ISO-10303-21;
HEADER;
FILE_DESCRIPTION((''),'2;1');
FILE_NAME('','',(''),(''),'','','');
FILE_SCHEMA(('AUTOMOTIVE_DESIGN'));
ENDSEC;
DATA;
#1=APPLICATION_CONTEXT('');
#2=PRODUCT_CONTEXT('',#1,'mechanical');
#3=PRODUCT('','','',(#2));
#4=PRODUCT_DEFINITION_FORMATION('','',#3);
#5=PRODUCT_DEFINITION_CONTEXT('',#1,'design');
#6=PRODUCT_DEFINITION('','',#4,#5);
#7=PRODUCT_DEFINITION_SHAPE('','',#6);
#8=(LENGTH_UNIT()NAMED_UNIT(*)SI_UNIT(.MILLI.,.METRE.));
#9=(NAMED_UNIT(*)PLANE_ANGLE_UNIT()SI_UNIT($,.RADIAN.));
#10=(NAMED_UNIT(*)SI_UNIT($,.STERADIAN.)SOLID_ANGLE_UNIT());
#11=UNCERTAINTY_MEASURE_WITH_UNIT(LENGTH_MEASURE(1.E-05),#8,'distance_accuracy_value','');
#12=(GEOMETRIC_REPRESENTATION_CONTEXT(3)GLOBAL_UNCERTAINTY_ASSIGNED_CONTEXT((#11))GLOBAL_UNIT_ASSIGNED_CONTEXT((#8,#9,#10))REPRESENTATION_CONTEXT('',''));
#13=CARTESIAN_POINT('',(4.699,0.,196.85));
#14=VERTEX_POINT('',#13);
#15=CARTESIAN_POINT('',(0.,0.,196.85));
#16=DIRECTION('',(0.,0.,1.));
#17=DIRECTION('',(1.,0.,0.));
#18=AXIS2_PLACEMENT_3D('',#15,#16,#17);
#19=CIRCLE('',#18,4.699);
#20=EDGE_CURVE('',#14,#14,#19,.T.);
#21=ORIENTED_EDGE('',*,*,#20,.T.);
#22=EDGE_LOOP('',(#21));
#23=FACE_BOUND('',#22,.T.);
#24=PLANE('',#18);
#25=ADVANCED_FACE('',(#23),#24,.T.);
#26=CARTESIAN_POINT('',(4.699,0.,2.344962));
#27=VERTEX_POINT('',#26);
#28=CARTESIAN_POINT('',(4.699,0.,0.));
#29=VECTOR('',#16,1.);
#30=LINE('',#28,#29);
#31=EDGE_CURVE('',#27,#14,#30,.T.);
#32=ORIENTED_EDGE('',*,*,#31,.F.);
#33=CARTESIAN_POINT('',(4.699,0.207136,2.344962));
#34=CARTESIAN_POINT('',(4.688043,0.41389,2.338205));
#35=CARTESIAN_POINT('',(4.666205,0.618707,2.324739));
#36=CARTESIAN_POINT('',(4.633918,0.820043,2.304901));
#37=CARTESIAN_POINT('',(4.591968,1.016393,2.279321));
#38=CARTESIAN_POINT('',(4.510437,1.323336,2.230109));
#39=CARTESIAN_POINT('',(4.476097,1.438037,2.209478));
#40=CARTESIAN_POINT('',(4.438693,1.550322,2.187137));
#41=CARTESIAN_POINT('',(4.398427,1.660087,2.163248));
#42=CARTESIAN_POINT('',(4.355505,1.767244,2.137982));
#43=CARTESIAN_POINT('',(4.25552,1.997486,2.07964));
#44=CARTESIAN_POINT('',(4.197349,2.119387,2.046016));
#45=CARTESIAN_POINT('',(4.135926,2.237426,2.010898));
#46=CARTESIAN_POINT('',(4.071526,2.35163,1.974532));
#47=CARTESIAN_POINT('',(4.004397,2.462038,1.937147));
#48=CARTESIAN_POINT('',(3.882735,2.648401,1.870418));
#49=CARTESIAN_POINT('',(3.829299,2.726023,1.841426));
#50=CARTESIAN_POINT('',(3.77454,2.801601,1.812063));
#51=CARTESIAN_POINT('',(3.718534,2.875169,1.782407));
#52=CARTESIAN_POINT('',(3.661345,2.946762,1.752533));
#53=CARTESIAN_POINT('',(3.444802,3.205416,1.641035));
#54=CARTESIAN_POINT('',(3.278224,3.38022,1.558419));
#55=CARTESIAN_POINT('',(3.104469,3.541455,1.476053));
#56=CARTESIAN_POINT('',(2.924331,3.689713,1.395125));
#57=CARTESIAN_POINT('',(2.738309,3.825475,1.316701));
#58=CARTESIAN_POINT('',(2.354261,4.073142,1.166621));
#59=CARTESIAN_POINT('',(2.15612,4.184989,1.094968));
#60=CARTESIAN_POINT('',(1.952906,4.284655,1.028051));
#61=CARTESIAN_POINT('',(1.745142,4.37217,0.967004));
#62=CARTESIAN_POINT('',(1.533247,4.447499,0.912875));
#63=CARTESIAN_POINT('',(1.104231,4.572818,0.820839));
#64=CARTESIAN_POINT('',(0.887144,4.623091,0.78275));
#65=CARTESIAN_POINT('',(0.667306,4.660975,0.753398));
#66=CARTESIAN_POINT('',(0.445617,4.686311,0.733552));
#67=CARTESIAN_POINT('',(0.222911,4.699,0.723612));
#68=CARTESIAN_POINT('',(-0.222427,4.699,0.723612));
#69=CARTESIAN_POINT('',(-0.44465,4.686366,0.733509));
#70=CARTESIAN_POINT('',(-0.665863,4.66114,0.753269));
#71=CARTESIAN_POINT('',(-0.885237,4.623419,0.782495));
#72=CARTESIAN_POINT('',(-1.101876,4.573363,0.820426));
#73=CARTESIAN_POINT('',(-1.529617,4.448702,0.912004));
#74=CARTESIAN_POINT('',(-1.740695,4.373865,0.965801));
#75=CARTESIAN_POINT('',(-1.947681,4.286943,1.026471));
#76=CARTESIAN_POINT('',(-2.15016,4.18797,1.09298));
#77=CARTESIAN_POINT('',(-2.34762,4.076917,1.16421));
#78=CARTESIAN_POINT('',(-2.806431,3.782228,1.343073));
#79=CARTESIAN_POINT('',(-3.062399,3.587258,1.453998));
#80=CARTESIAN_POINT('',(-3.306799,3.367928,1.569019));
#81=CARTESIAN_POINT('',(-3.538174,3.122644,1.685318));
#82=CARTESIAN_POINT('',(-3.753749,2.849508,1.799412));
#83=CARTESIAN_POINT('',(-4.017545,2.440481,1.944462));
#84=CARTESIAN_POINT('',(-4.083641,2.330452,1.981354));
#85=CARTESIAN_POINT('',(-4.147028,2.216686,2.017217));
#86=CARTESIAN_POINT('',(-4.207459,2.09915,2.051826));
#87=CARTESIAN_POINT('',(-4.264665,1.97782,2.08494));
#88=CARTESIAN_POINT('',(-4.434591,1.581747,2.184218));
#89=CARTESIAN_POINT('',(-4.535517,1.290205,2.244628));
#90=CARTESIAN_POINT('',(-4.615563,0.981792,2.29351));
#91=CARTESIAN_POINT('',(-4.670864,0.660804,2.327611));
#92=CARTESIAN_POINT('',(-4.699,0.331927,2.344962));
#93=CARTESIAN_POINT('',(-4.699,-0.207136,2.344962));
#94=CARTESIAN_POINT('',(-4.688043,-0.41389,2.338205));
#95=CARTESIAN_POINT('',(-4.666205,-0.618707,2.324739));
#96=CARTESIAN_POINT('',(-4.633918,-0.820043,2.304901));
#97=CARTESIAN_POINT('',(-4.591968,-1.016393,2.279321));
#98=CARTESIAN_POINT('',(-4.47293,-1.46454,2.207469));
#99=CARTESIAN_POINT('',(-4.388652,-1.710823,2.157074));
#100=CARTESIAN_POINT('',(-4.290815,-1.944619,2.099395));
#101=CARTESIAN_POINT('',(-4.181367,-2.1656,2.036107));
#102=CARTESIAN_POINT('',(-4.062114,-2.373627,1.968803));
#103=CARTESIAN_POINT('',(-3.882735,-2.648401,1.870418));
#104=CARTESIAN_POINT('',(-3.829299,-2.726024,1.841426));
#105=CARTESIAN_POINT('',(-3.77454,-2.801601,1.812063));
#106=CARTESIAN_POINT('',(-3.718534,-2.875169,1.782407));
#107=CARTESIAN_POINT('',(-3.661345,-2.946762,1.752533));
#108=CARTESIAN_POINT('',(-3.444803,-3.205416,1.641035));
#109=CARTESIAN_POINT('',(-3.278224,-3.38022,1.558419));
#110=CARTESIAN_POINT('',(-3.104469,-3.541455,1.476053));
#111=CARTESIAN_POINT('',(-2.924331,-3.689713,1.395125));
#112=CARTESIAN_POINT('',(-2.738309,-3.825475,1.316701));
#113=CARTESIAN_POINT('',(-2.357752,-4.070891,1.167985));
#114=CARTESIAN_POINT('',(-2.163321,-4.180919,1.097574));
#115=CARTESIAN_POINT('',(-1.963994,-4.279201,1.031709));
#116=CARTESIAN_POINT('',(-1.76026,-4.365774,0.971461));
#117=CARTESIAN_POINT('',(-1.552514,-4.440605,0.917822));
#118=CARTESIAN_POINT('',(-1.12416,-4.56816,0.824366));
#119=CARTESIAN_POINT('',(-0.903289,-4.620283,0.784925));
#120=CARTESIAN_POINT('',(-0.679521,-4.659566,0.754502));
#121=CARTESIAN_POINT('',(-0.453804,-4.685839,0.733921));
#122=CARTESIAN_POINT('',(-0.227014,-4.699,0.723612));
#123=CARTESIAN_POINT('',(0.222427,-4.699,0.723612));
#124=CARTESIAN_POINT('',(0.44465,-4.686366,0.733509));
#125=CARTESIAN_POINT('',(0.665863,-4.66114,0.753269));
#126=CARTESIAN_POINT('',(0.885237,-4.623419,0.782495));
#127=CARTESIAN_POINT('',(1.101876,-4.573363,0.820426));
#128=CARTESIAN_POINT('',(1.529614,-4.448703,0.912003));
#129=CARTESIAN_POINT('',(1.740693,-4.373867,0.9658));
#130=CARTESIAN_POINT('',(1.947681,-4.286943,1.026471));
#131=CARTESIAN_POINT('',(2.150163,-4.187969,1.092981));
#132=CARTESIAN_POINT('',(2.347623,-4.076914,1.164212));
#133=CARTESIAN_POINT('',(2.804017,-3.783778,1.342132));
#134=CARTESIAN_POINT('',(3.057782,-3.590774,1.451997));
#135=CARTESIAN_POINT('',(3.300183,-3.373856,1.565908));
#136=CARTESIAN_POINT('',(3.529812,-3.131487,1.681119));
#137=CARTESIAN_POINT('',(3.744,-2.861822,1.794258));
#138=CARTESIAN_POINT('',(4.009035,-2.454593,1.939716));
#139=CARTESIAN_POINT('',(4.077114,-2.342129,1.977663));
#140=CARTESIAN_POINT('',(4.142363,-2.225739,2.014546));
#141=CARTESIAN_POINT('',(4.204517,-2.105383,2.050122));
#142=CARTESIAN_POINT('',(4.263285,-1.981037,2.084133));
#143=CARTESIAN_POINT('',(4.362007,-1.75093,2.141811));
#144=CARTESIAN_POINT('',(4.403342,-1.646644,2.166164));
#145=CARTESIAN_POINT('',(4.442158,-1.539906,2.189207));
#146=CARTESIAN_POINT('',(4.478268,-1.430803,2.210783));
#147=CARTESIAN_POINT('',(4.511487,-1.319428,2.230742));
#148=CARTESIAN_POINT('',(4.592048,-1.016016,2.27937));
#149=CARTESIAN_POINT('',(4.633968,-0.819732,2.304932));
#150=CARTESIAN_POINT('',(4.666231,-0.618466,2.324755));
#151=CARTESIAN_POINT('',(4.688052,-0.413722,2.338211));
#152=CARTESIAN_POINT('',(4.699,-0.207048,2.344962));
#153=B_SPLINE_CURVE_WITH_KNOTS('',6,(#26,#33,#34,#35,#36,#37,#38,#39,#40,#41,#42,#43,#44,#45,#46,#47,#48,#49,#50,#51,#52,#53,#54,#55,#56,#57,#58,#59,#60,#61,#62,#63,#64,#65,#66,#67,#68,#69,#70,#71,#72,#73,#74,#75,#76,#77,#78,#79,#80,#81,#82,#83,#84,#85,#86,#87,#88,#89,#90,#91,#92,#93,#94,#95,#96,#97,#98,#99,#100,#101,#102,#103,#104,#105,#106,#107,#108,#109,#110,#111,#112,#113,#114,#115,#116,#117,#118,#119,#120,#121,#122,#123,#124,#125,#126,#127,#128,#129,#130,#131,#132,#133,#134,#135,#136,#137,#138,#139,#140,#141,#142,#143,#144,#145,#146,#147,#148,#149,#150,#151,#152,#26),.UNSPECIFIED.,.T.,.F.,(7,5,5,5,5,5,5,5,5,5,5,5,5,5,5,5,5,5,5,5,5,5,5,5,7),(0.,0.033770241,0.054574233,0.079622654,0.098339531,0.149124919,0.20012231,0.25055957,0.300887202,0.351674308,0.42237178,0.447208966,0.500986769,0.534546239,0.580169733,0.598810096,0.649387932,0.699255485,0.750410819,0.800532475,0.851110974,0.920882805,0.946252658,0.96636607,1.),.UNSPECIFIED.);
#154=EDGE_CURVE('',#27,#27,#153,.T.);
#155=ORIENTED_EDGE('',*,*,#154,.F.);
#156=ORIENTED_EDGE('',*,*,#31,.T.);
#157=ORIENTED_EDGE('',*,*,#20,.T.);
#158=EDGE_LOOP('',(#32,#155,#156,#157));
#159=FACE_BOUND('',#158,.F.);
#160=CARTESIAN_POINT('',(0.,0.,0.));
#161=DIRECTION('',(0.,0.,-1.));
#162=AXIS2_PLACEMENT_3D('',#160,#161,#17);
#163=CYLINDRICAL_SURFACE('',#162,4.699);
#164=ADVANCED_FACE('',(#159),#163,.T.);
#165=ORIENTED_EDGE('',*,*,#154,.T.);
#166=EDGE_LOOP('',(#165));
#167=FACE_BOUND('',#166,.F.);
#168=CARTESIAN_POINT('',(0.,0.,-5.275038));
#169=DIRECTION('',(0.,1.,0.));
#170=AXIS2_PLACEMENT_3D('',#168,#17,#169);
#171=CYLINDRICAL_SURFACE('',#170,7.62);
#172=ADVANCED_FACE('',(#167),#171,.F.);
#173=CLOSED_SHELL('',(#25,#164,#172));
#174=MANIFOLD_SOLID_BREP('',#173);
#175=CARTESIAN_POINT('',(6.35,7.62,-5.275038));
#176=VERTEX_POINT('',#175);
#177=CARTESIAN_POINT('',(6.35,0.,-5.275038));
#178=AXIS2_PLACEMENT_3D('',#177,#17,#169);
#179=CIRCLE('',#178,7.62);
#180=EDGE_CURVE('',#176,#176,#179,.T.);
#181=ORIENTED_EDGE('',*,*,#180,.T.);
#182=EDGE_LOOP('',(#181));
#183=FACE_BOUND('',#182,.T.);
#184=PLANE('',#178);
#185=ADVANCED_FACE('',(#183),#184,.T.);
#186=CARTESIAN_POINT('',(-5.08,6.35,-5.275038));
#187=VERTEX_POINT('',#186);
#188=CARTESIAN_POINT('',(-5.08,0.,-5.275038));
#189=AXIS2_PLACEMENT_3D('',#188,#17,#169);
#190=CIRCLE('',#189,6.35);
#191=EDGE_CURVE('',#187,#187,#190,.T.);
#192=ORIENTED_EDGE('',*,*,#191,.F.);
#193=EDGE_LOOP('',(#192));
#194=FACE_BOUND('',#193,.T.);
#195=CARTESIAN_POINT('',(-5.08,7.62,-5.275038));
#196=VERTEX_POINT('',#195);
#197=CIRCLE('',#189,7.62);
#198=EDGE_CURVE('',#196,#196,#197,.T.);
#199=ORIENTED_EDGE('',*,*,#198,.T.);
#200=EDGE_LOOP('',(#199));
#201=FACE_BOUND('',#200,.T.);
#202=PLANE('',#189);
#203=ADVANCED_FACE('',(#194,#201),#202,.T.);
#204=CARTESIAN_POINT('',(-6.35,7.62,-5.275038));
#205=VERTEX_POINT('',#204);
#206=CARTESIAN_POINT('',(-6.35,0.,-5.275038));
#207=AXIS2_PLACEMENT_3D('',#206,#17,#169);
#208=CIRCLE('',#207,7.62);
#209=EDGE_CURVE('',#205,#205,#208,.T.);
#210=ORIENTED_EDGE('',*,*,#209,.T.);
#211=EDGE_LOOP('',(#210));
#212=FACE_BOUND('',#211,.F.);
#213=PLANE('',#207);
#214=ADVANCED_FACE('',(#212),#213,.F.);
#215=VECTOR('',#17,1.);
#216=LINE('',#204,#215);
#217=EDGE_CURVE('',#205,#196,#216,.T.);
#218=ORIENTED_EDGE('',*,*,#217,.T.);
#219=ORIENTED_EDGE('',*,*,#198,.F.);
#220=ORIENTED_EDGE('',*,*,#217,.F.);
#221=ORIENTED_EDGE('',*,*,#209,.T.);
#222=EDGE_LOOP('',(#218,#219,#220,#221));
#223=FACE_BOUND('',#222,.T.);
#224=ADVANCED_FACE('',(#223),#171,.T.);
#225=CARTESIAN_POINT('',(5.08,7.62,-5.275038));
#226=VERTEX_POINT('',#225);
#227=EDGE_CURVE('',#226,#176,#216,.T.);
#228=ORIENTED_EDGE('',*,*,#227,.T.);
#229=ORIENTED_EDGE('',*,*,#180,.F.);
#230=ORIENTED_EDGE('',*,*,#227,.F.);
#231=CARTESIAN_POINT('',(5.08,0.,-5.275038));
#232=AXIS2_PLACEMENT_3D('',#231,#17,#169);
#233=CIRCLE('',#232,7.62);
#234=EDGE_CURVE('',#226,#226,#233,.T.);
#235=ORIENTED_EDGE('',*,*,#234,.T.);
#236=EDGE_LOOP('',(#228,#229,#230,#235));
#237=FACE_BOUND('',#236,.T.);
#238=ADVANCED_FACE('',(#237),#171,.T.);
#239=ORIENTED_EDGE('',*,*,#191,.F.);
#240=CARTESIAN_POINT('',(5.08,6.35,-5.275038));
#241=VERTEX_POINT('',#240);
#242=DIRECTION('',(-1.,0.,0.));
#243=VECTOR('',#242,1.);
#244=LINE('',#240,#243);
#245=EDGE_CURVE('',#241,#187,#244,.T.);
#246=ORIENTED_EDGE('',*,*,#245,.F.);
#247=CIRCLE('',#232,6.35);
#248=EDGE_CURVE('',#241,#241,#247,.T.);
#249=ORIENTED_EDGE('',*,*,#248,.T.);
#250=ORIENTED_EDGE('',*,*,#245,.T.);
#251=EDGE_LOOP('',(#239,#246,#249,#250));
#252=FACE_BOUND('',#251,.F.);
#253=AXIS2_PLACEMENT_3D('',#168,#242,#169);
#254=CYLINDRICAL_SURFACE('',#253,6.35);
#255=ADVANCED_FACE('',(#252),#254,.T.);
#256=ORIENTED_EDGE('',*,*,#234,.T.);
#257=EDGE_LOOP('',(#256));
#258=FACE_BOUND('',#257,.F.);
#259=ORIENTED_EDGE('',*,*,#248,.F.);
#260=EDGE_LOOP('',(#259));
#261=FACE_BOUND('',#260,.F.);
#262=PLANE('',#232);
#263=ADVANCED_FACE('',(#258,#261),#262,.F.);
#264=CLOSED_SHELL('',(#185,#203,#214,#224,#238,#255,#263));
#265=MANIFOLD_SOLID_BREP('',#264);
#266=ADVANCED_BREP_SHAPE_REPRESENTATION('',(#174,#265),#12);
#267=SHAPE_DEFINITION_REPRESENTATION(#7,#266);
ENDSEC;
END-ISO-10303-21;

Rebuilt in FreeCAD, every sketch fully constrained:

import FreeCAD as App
import Part
import Sketcher

V = App.Vector
Q = App.Units.Quantity

doc = App.newDocument("Part")
params = doc.addObject("Spreadsheet::Sheet", "Params")
for row, (alias, value) in enumerate([
    ("sketch1_diameter", "0.37 in"),
    ("pad1_length", "7.75 in"),
    ("sketch2_diameter", "0.6 in"),
    ("pad2_length", "0.5 in"),
    ("sketch3_diameter", "0.6 in"),
    ("sketch3_diameter2", "0.5 in"),
    ("pocket1_length", "0.4 in"),
], start=1):
    params.set(f"A{row}", alias)
    params.set(f"B{row}", "=" + value)
    params.setAlias(f"B{row}", alias)

body = doc.addObject("PartDesign::Body", "Body")
body.AllowCompound = True

sketch1 = body.newObject("Sketcher::SketchObject", "Sketch")
sketch1.AttachmentSupport = (doc.getObject("XY_Plane"), [""])
sketch1.MapMode = "FlatFace"
sketch1.addGeometry(Part.Circle(V(0, 0, 0), V(0, 0, 1), 4.7), False)
sketch1.addConstraint(Sketcher.Constraint("Coincident", 0, 3, -1, 1))
sketch1.addConstraint(Sketcher.Constraint("Diameter", 0, Q("0.37 in")))
sketch1.setExpression("Constraints[1]", "Params.sketch1_diameter")
pad1 = body.newObject("PartDesign::Pad", "Pad")
pad1.Profile = sketch1
pad1.setExpression("Length", "Params.pad1_length")

sketch2 = body.newObject("Sketcher::SketchObject", "Sketch001")
sketch2.AttachmentSupport = (doc.getObject("YZ_Plane"), [""])
sketch2.MapMode = "FlatFace"
sketch2.addGeometry(Part.Circle(V(0, -5, 0), V(0, 0, 1), 8), False)
sketch2.addConstraint(Sketcher.Constraint("PointOnObject", 0, 3, -2))
sketch2.addConstraint(Sketcher.Constraint("Diameter", 0, Q("0.6 in")))
sketch2.addConstraint(Sketcher.Constraint("DistanceY", 0, 3, -1, 1, 5.275038))
sketch2.setExpression("Constraints[1]", "Params.sketch2_diameter")
pad2 = body.newObject("PartDesign::Pad", "Pad001")
pad2.Profile = sketch2
pad2.setExpression("Length", "Params.pad2_length")
pad2.Midplane = True

sketch3 = body.newObject("Sketcher::SketchObject", "Sketch002")
sketch3.AttachmentSupport = (doc.getObject("YZ_Plane"), [""])
sketch3.MapMode = "FlatFace"
sketch3.addGeometry(Part.Circle(V(0, -5, 0), V(0, 0, 1), 8), False)
sketch3.addGeometry(Part.Circle(V(0, -5, 0), V(0, 0, 1), 6), False)
sketch3.addConstraint(Sketcher.Constraint("Coincident", 1, 3, 0, 3))
sketch3.addConstraint(Sketcher.Constraint("PointOnObject", 0, 3, -2))
sketch3.addConstraint(Sketcher.Constraint("Diameter", 0, Q("0.6 in")))
sketch3.addConstraint(Sketcher.Constraint("Diameter", 1, Q("0.5 in")))
sketch3.addConstraint(Sketcher.Constraint("DistanceY", 0, 3, -1, 1, 5.275038))
sketch3.setExpression("Constraints[2]", "Params.sketch3_diameter")
sketch3.setExpression("Constraints[3]", "Params.sketch3_diameter2")
pocket1 = body.newObject("PartDesign::Pocket", "Pocket")
pocket1.Profile = sketch3
pocket1.setExpression("Length", "Params.pocket1_length")
pocket1.Midplane = True

doc.recompute()
